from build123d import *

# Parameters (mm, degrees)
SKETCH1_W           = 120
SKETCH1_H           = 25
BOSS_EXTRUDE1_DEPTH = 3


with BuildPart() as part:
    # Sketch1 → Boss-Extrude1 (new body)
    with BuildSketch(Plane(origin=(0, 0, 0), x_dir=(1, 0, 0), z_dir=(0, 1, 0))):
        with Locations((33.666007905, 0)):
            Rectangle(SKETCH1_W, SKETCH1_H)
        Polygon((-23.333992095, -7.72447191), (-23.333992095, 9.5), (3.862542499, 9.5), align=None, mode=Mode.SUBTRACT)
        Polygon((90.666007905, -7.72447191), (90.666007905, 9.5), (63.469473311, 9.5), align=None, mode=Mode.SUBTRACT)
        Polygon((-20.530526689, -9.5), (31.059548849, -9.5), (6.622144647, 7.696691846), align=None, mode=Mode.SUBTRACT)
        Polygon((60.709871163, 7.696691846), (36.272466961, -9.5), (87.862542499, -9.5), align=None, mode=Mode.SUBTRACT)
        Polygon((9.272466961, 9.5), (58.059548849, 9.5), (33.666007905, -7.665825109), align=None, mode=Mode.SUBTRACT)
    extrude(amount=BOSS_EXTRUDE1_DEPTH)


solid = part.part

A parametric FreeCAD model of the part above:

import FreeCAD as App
import Part
import Sketcher
from FreeCAD import Vector
Q = App.Units.Quantity


def add_polygon(sketch, points):
    """Adds a closed chain of lines whose ends are joined by coincident constraints."""
    first, n = sketch.GeometryCount, len(points)
    for a, b in zip(points, points[1:] + points[:1]):
        sketch.addGeometry(Part.LineSegment(App.Vector(*a, 0), App.Vector(*b, 0)), False)
    for i in range(n):
        sketch.addConstraint(Sketcher.Constraint("Coincident", first + i, 2, first + (i + 1) % n, 1))

doc = App.newDocument("Part")
params = doc.addObject("Spreadsheet::Sheet", "Params")
for row, (alias, value) in enumerate([
    ("sketch1_width", "120 mm"),
    ("sketch1_height", "25 mm"),
    ("pad1_length", "3 mm"),
], start=1):
    params.set(f"A{row}", alias)
    params.set(f"B{row}", "=" + value)
    params.setAlias(f"B{row}", alias)

body = doc.addObject("PartDesign::Body", "Body")

# Sketch on XZ plane
sketch1 = body.newObject("Sketcher::SketchObject", "Sketch")
sketch1.AttachmentSupport = (doc.getObject("XZ_Plane"), [""])
sketch1.MapMode = "FlatFace"
add_polygon(sketch1, [(-26, -12), (-26, 12), (94, 12), (94, -12)])  # lines 0-3
add_polygon(sketch1, [(31, 10), (-21, 10), (7, -8)])  # lines 4-6
add_polygon(sketch1, [(36, 10), (61, -8), (88, 10)])  # lines 7-9
add_polygon(sketch1, [(4, -10), (-23, 8), (-23, -10)])  # lines 10-12
add_polygon(sketch1, [(34, 8), (9, -10), (58, -10)])  # lines 13-15
add_polygon(sketch1, [(91, -10), (91, 8), (63, -10)])  # lines 16-18
sketch1.addConstraint(Sketcher.Constraint("Vertical", 0))
sketch1.addConstraint(Sketcher.Constraint("Horizontal", 1))
sketch1.addConstraint(Sketcher.Constraint("Vertical", 2))
sketch1.addConstraint(Sketcher.Constraint("Horizontal", 3))
sketch1.addConstraint(Sketcher.Constraint("Horizontal", 4))
sketch1.addConstraint(Sketcher.Constraint("Horizontal", 9))
sketch1.addConstraint(Sketcher.Constraint("Vertical", 11))
sketch1.addConstraint(Sketcher.Constraint("Horizontal", 12))
sketch1.addConstraint(Sketcher.Constraint("Horizontal", 14))
sketch1.addConstraint(Sketcher.Constraint("Vertical", 16))
sketch1.addConstraint(Sketcher.Constraint("Horizontal", 18))
sketch1.addConstraint(Sketcher.Constraint("Parallel", 5, 10))
sketch1.addConstraint(Sketcher.Constraint("Parallel", 6, 13))
sketch1.addConstraint(Sketcher.Constraint("Parallel", 7, 15))
sketch1.addConstraint(Sketcher.Constraint("Parallel", 8, 17))
sketch1.addConstraint(Sketcher.Constraint("Horizontal", 5, 2, 7, 2))
sketch1.addConstraint(Sketcher.Constraint("Horizontal", 6, 2, 8, 2))
sketch1.addConstraint(Sketcher.Constraint("Horizontal", 12, 2, 13, 2))
sketch1.addConstraint(Sketcher.Constraint("Horizontal", 10, 2, 16, 2))
sketch1.addConstraint(Sketcher.Constraint("Horizontal", 14, 2, 17, 2))
sketch1.addConstraint(Sketcher.Constraint("Equal", 4, 9))
sketch1.addConstraint(Sketcher.Constraint("Equal", 12, 18))
sketch1.addConstraint(Sketcher.Constraint("DistanceX", 1, 1, 1, 2, Q("120 mm")))
sketch1.addConstraint(Sketcher.Constraint("DistanceY", 0, 1, 0, 2, Q("25 mm")))
sketch1.addConstraint(Sketcher.Constraint("DistanceY", 4, 2, 0, 2, Q("3 mm")))
sketch1.addConstraint(Sketcher.Constraint("DistanceX", 0, 2, 10, 2, Q("3 mm")))
sketch1.addConstraint(Sketcher.Constraint("DistanceY", 3, 2, 11, 2, Q("3 mm")))
sketch1.addConstraint(Sketcher.Constraint("DistanceX", 13, 2, 9, 2, Q("27 mm")))
sketch1.addConstraint(Sketcher.Constraint("DistanceX", 6, 2, 14, 2, Q("27 mm")))
sketch1.addConstraint(Sketcher.Constraint("DistanceX", 16, 2, 1, 2, Q("3 mm")))
sketch1.addConstraint(Sketcher.Constraint("DistanceY", -1, 1, 0, 2, Q("12.5 mm")))
sketch1.addConstraint(Sketcher.Constraint("DistanceX", 14, 1, 14, 2, Q("48.787082 mm")))
sketch1.addConstraint(Sketcher.Constraint("DistanceY", 11, 2, 11, 1, Q("17.224472 mm")))
sketch1.addConstraint(Sketcher.Constraint("Distance", 5, Q("32.14022 mm")))
sketch1.addConstraint(Sketcher.Constraint("Distance", 6, Q("29.881649 mm")))
sketch1.addConstraint(Sketcher.Constraint("Distance", 10, Q("32.192141 mm")))
sketch1.addConstraint(Sketcher.Constraint("DistanceX", -1, 1, 6, 2, Q("31.059549 mm")))
sketch1.addConstraint(Sketcher.Constraint("DistanceX", 0, 2, 6, 2, Q("57.393541 mm")))
sketch1.setExpression("Constraints[41]", "Params.sketch1_width")
sketch1.setExpression("Constraints[42]", "Params.sketch1_height")
pad1 = body.newObject("PartDesign::Pad", "Pad")
pad1.Profile = sketch1
pad1.setExpression("Length", "Params.pad1_length")
pad1.Reversed = True

doc.recompute()
